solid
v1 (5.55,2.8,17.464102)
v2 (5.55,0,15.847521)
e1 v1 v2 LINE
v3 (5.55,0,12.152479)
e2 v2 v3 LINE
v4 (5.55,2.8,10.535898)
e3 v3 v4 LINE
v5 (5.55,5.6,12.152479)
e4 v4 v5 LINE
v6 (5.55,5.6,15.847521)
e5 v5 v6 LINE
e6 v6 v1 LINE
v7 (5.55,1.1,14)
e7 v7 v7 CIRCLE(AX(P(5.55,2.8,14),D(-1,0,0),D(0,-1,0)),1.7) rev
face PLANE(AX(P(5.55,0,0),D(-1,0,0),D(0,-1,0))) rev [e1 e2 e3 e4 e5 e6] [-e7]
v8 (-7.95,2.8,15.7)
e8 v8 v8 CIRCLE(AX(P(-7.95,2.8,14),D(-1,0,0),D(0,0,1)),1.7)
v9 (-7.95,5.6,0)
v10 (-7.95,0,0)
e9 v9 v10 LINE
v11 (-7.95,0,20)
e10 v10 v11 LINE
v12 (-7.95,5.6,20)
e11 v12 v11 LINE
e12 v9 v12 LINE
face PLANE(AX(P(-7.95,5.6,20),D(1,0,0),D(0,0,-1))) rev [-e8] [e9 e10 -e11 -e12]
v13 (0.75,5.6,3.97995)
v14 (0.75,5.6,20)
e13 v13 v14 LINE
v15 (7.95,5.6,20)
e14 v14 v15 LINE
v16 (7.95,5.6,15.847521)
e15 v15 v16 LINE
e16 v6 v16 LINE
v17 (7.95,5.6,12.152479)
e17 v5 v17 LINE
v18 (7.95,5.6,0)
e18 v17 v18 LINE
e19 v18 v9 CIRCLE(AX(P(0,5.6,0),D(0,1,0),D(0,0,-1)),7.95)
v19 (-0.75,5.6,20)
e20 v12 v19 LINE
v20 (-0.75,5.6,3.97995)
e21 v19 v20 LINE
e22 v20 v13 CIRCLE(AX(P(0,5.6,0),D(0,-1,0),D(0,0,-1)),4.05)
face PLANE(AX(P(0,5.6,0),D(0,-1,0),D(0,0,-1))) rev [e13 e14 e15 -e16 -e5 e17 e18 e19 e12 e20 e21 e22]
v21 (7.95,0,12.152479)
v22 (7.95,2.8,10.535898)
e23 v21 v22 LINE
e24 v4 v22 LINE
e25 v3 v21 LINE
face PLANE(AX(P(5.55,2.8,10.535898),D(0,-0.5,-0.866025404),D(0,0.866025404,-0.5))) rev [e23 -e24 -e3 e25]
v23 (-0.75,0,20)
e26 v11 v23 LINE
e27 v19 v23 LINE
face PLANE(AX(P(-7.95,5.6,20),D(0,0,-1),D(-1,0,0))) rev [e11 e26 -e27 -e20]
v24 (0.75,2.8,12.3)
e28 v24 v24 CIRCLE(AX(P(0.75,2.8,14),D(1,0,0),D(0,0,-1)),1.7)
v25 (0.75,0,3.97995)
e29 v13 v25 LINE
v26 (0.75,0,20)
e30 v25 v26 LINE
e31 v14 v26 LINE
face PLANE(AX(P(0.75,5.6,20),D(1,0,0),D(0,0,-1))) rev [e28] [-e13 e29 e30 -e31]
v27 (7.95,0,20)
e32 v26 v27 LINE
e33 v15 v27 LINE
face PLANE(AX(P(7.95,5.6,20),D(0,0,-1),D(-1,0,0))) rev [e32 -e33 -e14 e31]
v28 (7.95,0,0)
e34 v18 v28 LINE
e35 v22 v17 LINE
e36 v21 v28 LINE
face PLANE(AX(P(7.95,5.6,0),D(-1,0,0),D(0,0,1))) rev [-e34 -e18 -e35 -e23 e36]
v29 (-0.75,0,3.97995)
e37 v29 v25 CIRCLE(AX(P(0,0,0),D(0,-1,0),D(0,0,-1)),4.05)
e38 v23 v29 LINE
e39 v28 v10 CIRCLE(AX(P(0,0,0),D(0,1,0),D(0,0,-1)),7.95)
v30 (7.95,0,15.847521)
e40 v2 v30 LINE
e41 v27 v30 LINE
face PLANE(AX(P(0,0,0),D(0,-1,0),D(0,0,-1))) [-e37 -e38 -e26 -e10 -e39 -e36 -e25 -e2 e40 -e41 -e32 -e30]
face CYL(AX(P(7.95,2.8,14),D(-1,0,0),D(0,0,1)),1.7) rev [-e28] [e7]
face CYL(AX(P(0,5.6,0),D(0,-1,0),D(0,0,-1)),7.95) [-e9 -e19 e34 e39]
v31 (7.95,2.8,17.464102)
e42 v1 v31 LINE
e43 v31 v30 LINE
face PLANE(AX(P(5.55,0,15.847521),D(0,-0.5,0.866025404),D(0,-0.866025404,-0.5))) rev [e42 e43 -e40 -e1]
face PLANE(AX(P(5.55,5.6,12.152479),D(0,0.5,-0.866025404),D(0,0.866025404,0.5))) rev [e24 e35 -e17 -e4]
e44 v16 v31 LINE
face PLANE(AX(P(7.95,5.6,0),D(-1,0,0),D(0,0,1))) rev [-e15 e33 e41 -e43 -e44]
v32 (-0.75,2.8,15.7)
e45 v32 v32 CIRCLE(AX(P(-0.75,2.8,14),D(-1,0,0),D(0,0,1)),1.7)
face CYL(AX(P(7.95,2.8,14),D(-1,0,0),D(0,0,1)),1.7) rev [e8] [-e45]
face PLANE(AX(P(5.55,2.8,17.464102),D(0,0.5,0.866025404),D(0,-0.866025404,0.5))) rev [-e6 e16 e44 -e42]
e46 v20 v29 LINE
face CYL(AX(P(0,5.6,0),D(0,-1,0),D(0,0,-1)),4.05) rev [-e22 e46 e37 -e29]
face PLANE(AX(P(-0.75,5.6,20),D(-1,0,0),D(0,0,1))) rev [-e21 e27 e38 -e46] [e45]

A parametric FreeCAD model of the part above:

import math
import FreeCAD as App
import Part
import Sketcher

V = App.Vector
Q = App.Units.Quantity

doc = App.newDocument("Part")
body = doc.addObject("PartDesign::Body", "Body")

# Sketch on XZ plane
sketch1 = body.newObject("Sketcher::SketchObject", "Sketch")
sketch1.AttachmentSupport = (doc.getObject("XZ_Plane"), [""])
sketch1.MapMode = "FlatFace"
sketch1.addGeometry(Part.LineSegment(V(-8, 0, 0), V(-8, 20, 0)), False)
sketch1.addGeometry(Part.LineSegment(V(-8, 20, 0), V(-0.8, 20, 0)), False)
sketch1.addGeometry(Part.LineSegment(V(-0.8, 20, 0), V(-0.8, 4, 0)), False)
sketch1.addGeometry(Part.ArcOfCircle(Part.Circle(V(0, 0, 0), V(0, 0, 1), 4), math.radians(101), math.radians(439)), False)
sketch1.addGeometry(Part.LineSegment(V(0.8, 4, 0), V(0.8, 20, 0)), False)
sketch1.addGeometry(Part.LineSegment(V(0.8, 20, 0), V(8, 20, 0)), False)
sketch1.addGeometry(Part.LineSegment(V(8, 20, 0), V(8, 0, 0)), False)
sketch1.addGeometry(Part.ArcOfCircle(Part.Circle(V(0, 0, 0), V(0, 0, 1), 8), math.radians(180), math.radians(360)), False)
sketch1.addConstraint(Sketcher.Constraint("Coincident", 0, 2, 1, 1))
sketch1.addConstraint(Sketcher.Constraint("Coincident", 1, 2, 2, 1))
sketch1.addConstraint(Sketcher.Constraint("Coincident", 2, 2, 3, 1))
sketch1.addConstraint(Sketcher.Constraint("Coincident", 3, 2, 4, 1))
sketch1.addConstraint(Sketcher.Constraint("Coincident", 4, 2, 5, 1))
sketch1.addConstraint(Sketcher.Constraint("Coincident", 5, 2, 6, 1))
sketch1.addConstraint(Sketcher.Constraint("Tangent", 6, 2, 7, 2))
sketch1.addConstraint(Sketcher.Constraint("Tangent", 7, 1, 0, 1))
sketch1.addConstraint(Sketcher.Constraint("Vertical", 0))
sketch1.addConstraint(Sketcher.Constraint("Horizontal", 1))
sketch1.addConstraint(Sketcher.Constraint("Vertical", 2))
sketch1.addConstraint(Sketcher.Constraint("Vertical", 4))
sketch1.addConstraint(Sketcher.Constraint("Horizontal", 5))
sketch1.addConstraint(Sketcher.Constraint("Vertical", 6))
sketch1.addConstraint(Sketcher.Constraint("Coincident", 3, 3, -1, 1))
sketch1.addConstraint(Sketcher.Constraint("Coincident", 7, 3, -1, 1))
sketch1.addConstraint(Sketcher.Constraint("Symmetric", 1, 2, 4, 2, -2))
sketch1.addConstraint(Sketcher.Constraint("DistanceY", 0, 1, 0, 2, 20.0))
sketch1.addConstraint(Sketcher.Constraint("Radius", 3, 4.05))
sketch1.addConstraint(Sketcher.Constraint("Radius", 7, 7.95))
sketch1.addConstraint(Sketcher.Constraint("DistanceX", 1, 1, 1, 2, 7.2))
pad1 = body.newObject("PartDesign::Pad", "Pad")
pad1.Profile = sketch1
pad1.Length = 5.6
pad1.Reversed = True

# Sketch on YZ plane
sketch2 = body.newObject("Sketcher::SketchObject", "Sketch001")
sketch2.AttachmentSupport = (doc.getObject("YZ_Plane"), [""])
sketch2.MapMode = "FlatFace"
sketch2.AttachmentOffset = App.Placement(V(0, 0, -7.95), App.Rotation())
sketch2.addGeometry(Part.Circle(V(2.8, 14, 0), V(0, 0, 1), 1.7), False)
sketch2.addConstraint(Sketcher.Constraint("Diameter", 0, 3.4))
sketch2.addConstraint(Sketcher.Constraint("DistanceY", -1, 1, 0, 3, 14.0))
sketch2.addConstraint(Sketcher.Constraint("DistanceX", -1, 1, 0, 3, 2.8))
pocket1 = body.newObject("PartDesign::Pocket", "Pocket")
pocket1.Profile = sketch2
pocket1.Type = "ThroughAll"
pocket1.Reversed = True

# Sketch on YZ plane
sketch3 = body.newObject("Sketcher::SketchObject", "Sketch002")
sketch3.AttachmentSupport = (doc.getObject("YZ_Plane"), [""])
sketch3.MapMode = "FlatFace"
sketch3.AttachmentOffset = App.Placement(V(0, 0, 7.95), App.Rotation())
sketch3.addGeometry(Part.LineSegment(V(5.6, 15.8, 0), V(2.8, 17.5, 0)), False)
sketch3.addGeometry(Part.LineSegment(V(2.8, 17.5, 0), V(0, 15.8, 0)), False)
sketch3.addGeometry(Part.LineSegment(V(0, 15.8, 0), V(0, 12.2, 0)), False)
sketch3.addGeometry(Part.LineSegment(V(0, 12.2, 0), V(2.8, 10.5, 0)), False)
sketch3.addGeometry(Part.LineSegment(V(2.8, 10.5, 0), V(5.6, 12.2, 0)), False)
sketch3.addGeometry(Part.LineSegment(V(5.6, 12.2, 0), V(5.6, 15.8, 0)), False)
sketch3.addConstraint(Sketcher.Constraint("Coincident", 0, 2, 1, 1))
sketch3.addConstraint(Sketcher.Constraint("Coincident", 1, 2, 2, 1))
sketch3.addConstraint(Sketcher.Constraint("Coincident", 2, 2, 3, 1))
sketch3.addConstraint(Sketcher.Constraint("Coincident", 3, 2, 4, 1))
sketch3.addConstraint(Sketcher.Constraint("Coincident", 4, 2, 5, 1))
sketch3.addConstraint(Sketcher.Constraint("Coincident", 5, 2, 0, 1))
sketch3.addConstraint(Sketcher.Constraint("Vertical", 2))
sketch3.addConstraint(Sketcher.Constraint("Vertical", 5))
sketch3.addConstraint(Sketcher.Constraint("PointOnObject", 1, 2, -2))
sketch3.addConstraint(Sketcher.Constraint("Parallel", 0, 3))
sketch3.addConstraint(Sketcher.Constraint("Parallel", 1, 4))
sketch3.addConstraint(Sketcher.Constraint("Horizontal", 2, 2, 4, 2))
sketch3.addConstraint(Sketcher.Constraint("Horizontal", 1, 2, 5, 2))
sketch3.addConstraint(Sketcher.Constraint("Vertical", 0, 2, 3, 2))
sketch3.addConstraint(Sketcher.Constraint("Angle", 0, Q("150 deg")))
sketch3.addConstraint(Sketcher.Constraint("DistanceX", -1, 1, 0, 2, 2.8))
sketch3.addConstraint(Sketcher.Constraint("DistanceY", 2, 2, 2, 1, 3.695042))
sketch3.addConstraint(Sketcher.Constraint("DistanceY", -1, 1, 0, 2, 17.464102))
pocket2 = body.newObject("PartDesign::Pocket", "Pocket001")
pocket2.Profile = sketch3
pocket2.Length = 2.4

doc.recompute()
